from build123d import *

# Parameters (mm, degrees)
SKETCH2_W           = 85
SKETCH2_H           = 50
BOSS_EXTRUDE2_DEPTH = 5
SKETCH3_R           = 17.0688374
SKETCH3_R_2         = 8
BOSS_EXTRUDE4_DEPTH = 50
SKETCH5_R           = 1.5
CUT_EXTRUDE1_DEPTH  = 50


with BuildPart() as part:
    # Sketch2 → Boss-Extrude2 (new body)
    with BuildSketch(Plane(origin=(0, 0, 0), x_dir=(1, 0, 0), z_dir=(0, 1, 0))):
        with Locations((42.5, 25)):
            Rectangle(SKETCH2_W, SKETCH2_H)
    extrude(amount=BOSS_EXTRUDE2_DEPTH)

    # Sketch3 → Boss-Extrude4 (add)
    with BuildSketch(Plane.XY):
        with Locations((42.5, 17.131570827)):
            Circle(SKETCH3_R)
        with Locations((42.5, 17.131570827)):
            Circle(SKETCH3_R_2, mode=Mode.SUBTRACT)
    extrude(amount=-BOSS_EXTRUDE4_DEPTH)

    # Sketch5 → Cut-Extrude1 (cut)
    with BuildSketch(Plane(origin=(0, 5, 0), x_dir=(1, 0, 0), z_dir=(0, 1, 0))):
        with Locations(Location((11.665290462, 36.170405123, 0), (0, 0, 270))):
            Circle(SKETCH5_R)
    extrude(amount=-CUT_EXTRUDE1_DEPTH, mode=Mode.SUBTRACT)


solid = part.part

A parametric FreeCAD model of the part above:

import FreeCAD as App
import Part
import Sketcher
from FreeCAD import Vector
Q = App.Units.Quantity


def add_polygon(sketch, points):
    """Adds a closed chain of lines whose ends are joined by coincident constraints."""
    first, n = sketch.GeometryCount, len(points)
    for a, b in zip(points, points[1:] + points[:1]):
        sketch.addGeometry(Part.LineSegment(App.Vector(*a, 0), App.Vector(*b, 0)), False)
    for i in range(n):
        sketch.addConstraint(Sketcher.Constraint("Coincident", first + i, 2, first + (i + 1) % n, 1))

doc = App.newDocument("Part")
body = doc.addObject("PartDesign::Body", "Body")

# Sketch on XZ plane
sketch1 = body.newObject("Sketcher::SketchObject", "Sketch")
sketch1.AttachmentSupport = (doc.getObject("XZ_Plane"), [""])
sketch1.MapMode = "FlatFace"
add_polygon(sketch1, [(0, -50), (0, 0), (85, 0), (85, -50)])  # lines 0-3
sketch1.addConstraint(Sketcher.Constraint("Vertical", 0))
sketch1.addConstraint(Sketcher.Constraint("Horizontal", 1))
sketch1.addConstraint(Sketcher.Constraint("Vertical", 2))
sketch1.addConstraint(Sketcher.Constraint("Horizontal", 3))
sketch1.addConstraint(Sketcher.Constraint("Coincident", 0, 2, -1, 1))
sketch1.addConstraint(Sketcher.Constraint("DistanceX", 1, 1, 1, 2, Q("85 mm")))
sketch1.addConstraint(Sketcher.Constraint("DistanceY", 0, 1, 0, 2, Q("50 mm")))
pad1 = body.newObject("PartDesign::Pad", "Pad")
pad1.Profile = sketch1
pad1.Length = 5
pad1.Reversed = True

# Sketch on XY plane
sketch2 = body.newObject("Sketcher::SketchObject", "Sketch001")
sketch2.AttachmentSupport = (doc.getObject("XY_Plane"), [""])
sketch2.MapMode = "FlatFace"
sketch2.addGeometry(Part.Circle(Vector(42, 17, 0), Vector(0, 0, 1), 17), False)
sketch2.addGeometry(Part.Circle(Vector(42, 17, 0), Vector(0, 0, 1), 8), False)
sketch2.addConstraint(Sketcher.Constraint("Coincident", 1, 3, 0, 3))
sketch2.addConstraint(Sketcher.Constraint("Diameter", 1, Q("16 mm")))
sketch2.addConstraint(Sketcher.Constraint("DistanceX", -1, 1, 0, 3, Q("42.5 mm")))
sketch2.addConstraint(Sketcher.Constraint("Diameter", 0, Q("34.137675 mm")))
sketch2.addConstraint(Sketcher.Constraint("DistanceY", -1, 1, 0, 3, Q("17.131571 mm")))
pad2 = body.newObject("PartDesign::Pad", "Pad001")
pad2.Profile = sketch2
pad2.Length = 50
pad2.Reversed = True

# Sketch on XZ plane
sketch3 = body.newObject("Sketcher::SketchObject", "Sketch002")
sketch3.AttachmentSupport = (doc.getObject("XZ_Plane"), [""])
sketch3.MapMode = "FlatFace"
sketch3.AttachmentOffset = App.Placement(Vector(0, 0, -5), App.Rotation())
sketch3.addGeometry(Part.Circle(Vector(11.7, -36.2, 0), Vector(0, 0, 1), 1.5), False)
sketch3.addConstraint(Sketcher.Constraint("Diameter", 0, Q("3 mm")))
sketch3.addConstraint(Sketcher.Constraint("DistanceX", -1, 1, 0, 3, Q("11.66529 mm")))
sketch3.addConstraint(Sketcher.Constraint("DistanceY", 0, 3, -1, 1, Q("36.170405 mm")))
pocket1 = body.newObject("PartDesign::Pocket", "Pocket")
pocket1.Profile = sketch3
pocket1.Length = 50
pocket1.Reversed = True

doc.recompute()
